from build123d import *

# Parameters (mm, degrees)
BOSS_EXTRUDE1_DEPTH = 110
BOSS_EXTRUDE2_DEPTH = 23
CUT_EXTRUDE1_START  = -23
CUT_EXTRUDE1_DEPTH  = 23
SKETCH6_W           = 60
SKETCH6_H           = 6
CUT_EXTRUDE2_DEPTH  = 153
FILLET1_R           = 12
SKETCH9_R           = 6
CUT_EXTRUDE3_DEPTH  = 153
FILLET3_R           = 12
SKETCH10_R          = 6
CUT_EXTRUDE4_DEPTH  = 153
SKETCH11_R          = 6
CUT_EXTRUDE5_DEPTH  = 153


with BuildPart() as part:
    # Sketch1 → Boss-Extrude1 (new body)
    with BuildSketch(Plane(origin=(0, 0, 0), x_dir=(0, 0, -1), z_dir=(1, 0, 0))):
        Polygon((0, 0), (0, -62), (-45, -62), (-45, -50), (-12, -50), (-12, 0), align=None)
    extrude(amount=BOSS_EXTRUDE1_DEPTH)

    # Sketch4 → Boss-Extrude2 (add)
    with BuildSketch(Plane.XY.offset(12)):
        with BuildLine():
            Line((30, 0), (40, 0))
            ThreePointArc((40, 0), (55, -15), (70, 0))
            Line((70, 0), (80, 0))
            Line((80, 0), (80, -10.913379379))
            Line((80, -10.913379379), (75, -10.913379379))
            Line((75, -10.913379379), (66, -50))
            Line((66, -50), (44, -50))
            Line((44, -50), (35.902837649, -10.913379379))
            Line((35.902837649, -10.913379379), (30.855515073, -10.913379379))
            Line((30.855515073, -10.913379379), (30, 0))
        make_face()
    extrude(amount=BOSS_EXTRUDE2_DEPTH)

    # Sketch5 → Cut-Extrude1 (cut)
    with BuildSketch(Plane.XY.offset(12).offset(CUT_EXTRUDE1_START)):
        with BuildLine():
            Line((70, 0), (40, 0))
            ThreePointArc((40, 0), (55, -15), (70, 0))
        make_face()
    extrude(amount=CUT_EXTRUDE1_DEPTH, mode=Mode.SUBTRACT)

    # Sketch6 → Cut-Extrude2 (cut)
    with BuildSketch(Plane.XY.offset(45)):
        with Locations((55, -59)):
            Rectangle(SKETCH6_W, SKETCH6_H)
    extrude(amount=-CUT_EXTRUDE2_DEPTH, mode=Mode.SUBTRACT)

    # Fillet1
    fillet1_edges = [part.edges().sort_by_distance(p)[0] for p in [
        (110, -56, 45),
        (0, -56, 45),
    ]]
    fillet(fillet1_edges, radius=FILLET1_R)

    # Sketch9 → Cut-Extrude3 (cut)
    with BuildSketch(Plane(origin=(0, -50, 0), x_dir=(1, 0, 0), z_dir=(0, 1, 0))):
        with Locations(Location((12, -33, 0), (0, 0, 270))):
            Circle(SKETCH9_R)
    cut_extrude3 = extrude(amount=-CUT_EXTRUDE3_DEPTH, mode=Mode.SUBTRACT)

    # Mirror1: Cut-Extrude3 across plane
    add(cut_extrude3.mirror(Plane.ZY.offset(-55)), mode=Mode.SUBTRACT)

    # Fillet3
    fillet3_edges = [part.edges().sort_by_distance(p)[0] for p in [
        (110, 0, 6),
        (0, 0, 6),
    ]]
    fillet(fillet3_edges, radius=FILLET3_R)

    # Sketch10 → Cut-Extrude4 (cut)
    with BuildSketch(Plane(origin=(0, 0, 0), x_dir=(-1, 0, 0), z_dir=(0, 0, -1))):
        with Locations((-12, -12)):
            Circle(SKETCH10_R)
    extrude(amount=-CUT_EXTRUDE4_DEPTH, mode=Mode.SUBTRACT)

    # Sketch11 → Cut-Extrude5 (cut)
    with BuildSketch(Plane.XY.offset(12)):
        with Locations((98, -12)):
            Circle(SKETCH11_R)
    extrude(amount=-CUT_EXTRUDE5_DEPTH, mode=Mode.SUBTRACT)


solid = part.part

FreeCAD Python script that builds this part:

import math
import FreeCAD as App
import Part
import Sketcher


def edges_at(feature, points):
    """Names of the edges that pass closest to the given points."""
    edges = feature.Shape.Edges
    near = lambda p: min(range(len(edges)), key=lambda i: edges[i].distToShape(Part.Vertex(*p))[0])
    return sorted({f"Edge{near(p) + 1}" for p in points})

doc = App.newDocument("Part")
params = doc.addObject("Spreadsheet::Sheet", "Params")
for row, (alias, value) in enumerate([
    ("sketch1_width", "62 mm"),
    ("sketch1_width2", "50 mm"),
    ("sketch1_height", "33 mm"),
    ("pad1_length", "110 mm"),
    ("sketch2_radius", "15 mm"),
    ("sketch2_width", "10 mm"),
    ("sketch2_width2", "22 mm"),
    ("sketch2_width3", "5 mm"),
    ("pad2_length", "23 mm"),
    ("sketch3_radius", "15 mm"),
    ("pocket1_length", "23 mm"),
    ("sketch4_width", "60 mm"),
    ("sketch4_height", "6 mm"),
    ("pocket2_length", "153 mm"),
    ("fillet_radius", "12 mm"),
    ("sketch5_diameter", "12 mm"),
    ("pocket3_length", "153 mm"),
    ("fillet2_radius", "12 mm"),
    ("sketch6_diameter", "12 mm"),
    ("pocket4_length", "153 mm"),
    ("sketch7_diameter", "12 mm"),
    ("pocket5_length", "153 mm"),
], start=1):
    params.set(f"A{row}", alias)
    params.set(f"B{row}", "=" + value)
    params.setAlias(f"B{row}", alias)

body = doc.addObject("PartDesign::Body", "Body")

# Sketch on YZ plane
sketch1 = body.newObject("Sketcher::SketchObject", "Sketch")
sketch1.AttachmentSupport = (doc.getObject("YZ_Plane"), [""])
sketch1.MapMode = "FlatFace"
sketch1.addGeometry([
    Part.LineSegment(App.Vector(-62, 0, 0), App.Vector(0, 0, 0)),  # 0
    Part.LineSegment(App.Vector(0, 0, 0), App.Vector(0, 12, 0)),  # 1
    Part.LineSegment(App.Vector(0, 12, 0), App.Vector(-50, 12, 0)),  # 2
    Part.LineSegment(App.Vector(-50, 12, 0), App.Vector(-50, 45, 0)),  # 3
    Part.LineSegment(App.Vector(-50, 45, 0), App.Vector(-62, 45, 0)),  # 4
    Part.LineSegment(App.Vector(-62, 45, 0), App.Vector(-62, 0, 0)),  # 5
], False)
sketch1.addConstraint([
    Sketcher.Constraint("Coincident", 0, 2, 1, 1),
    Sketcher.Constraint("Coincident", 1, 2, 2, 1),
    Sketcher.Constraint("Coincident", 2, 2, 3, 1),
    Sketcher.Constraint("Coincident", 3, 2, 4, 1),
    Sketcher.Constraint("Coincident", 4, 2, 5, 1),
    Sketcher.Constraint("Coincident", 5, 2, 0, 1),
    Sketcher.Constraint("Horizontal", 0),
    Sketcher.Constraint("Vertical", 1),
    Sketcher.Constraint("Horizontal", 2),
    Sketcher.Constraint("Vertical", 3),
    Sketcher.Constraint("Horizontal", 4),
    Sketcher.Constraint("Vertical", 5),
    Sketcher.Constraint("Coincident", 0, 2, -1, 1),
    Sketcher.Constraint("Equal", 4, 1),
    Sketcher.Constraint("DistanceX", 0, 1, 0, 2, 62.0),
    Sketcher.Constraint("DistanceX", 2, 2, 2, 1, 50.0),
    Sketcher.Constraint("DistanceY", 3, 1, 3, 2, 33.0),
])
sketch1.setExpression("Constraints[14]", "Params.sketch1_width")
sketch1.setExpression("Constraints[15]", "Params.sketch1_width2")
sketch1.setExpression("Constraints[16]", "Params.sketch1_height")
pad1 = body.newObject("PartDesign::Pad", "Pad")
pad1.Profile = sketch1
pad1.setExpression("Length", "Params.pad1_length")

# Sketch on XY plane
sketch2 = body.newObject("Sketcher::SketchObject", "Sketch001")
sketch2.AttachmentSupport = (doc.getObject("XY_Plane"), [""])
sketch2.MapMode = "FlatFace"
sketch2.AttachmentOffset = App.Placement(App.Vector(0, 0, 12), App.Rotation())
sketch2.addGeometry([
    Part.LineSegment(App.Vector(40, 0, 0), App.Vector(30, 0, 0)),  # 0
    Part.LineSegment(App.Vector(30, 0, 0), App.Vector(31, -11, 0)),  # 1
    Part.LineSegment(App.Vector(31, -11, 0), App.Vector(36, -11, 0)),  # 2
    Part.LineSegment(App.Vector(36, -11, 0), App.Vector(44, -50, 0)),  # 3
    Part.LineSegment(App.Vector(44, -50, 0), App.Vector(66, -50, 0)),  # 4
    Part.LineSegment(App.Vector(66, -50, 0), App.Vector(75, -11, 0)),  # 5
    Part.LineSegment(App.Vector(75, -11, 0), App.Vector(80, -11, 0)),  # 6
    Part.LineSegment(App.Vector(80, -11, 0), App.Vector(80, 0, 0)),  # 7
    Part.LineSegment(App.Vector(80, 0, 0), App.Vector(70, 0, 0)),  # 8
    Part.ArcOfCircle(Part.Circle(App.Vector(55, 0, 0), App.Vector(0, 0, 1), 15), math.radians(180), math.radians(360)),  # 9
], False)
sketch2.addConstraint([
    Sketcher.Constraint("Coincident", 0, 2, 1, 1),
    Sketcher.Constraint("Coincident", 1, 2, 2, 1),
    Sketcher.Constraint("Coincident", 2, 2, 3, 1),
    Sketcher.Constraint("Coincident", 3, 2, 4, 1),
    Sketcher.Constraint("Coincident", 4, 2, 5, 1),
    Sketcher.Constraint("Coincident", 5, 2, 6, 1),
    Sketcher.Constraint("Coincident", 6, 2, 7, 1),
    Sketcher.Constraint("Coincident", 7, 2, 8, 1),
    Sketcher.Constraint("Coincident", 8, 2, 9, 2),
    Sketcher.Constraint("Coincident", 9, 1, 0, 1),
    Sketcher.Constraint("Horizontal", 0),
    Sketcher.Constraint("Horizontal", 2),
    Sketcher.Constraint("Horizontal", 4),
    Sketcher.Constraint("Horizontal", 6),
    Sketcher.Constraint("Vertical", 7),
    Sketcher.Constraint("Horizontal", 8),
    Sketcher.Constraint("PointOnObject", 9, 3, -1),
    Sketcher.Constraint("PointOnObject", 0, 2, -1),
    Sketcher.Constraint("PointOnObject", 7, 2, -1),
    Sketcher.Constraint("Horizontal", 2, 2, 5, 2),
    Sketcher.Constraint("Equal", 0, 8),
    Sketcher.Constraint("Radius", 9, 15.0),
    Sketcher.Constraint("DistanceX", 0, 2, 0, 1, 10.0),
    Sketcher.Constraint("DistanceX", 4, 1, 4, 2, 22.0),
    Sketcher.Constraint("DistanceX", 6, 1, 6, 2, 5.0),
    Sketcher.Constraint("DistanceX", -1, 1, 9, 3, 55.0),
    Sketcher.Constraint("DistanceX", -1, 1, 3, 2, 44.0),
    Sketcher.Constraint("DistanceY", 3, 2, -1, 1, 50.0),
    Sketcher.Constraint("Distance", 5, 40.109399),
    Sketcher.Constraint("Distance", 1, 10.946861),
    Sketcher.Constraint("DistanceX", 2, 1, 2, 2, 5.047323),
])
sketch2.setExpression("Constraints[21]", "Params.sketch2_radius")
sketch2.setExpression("Constraints[22]", "Params.sketch2_width")
sketch2.setExpression("Constraints[23]", "Params.sketch2_width2")
sketch2.setExpression("Constraints[24]", "Params.sketch2_width3")
pad2 = body.newObject("PartDesign::Pad", "Pad001")
pad2.Profile = sketch2
pad2.setExpression("Length", "Params.pad2_length")

# Sketch on XY plane
sketch3 = body.newObject("Sketcher::SketchObject", "Sketch002")
sketch3.AttachmentSupport = (doc.getObject("XY_Plane"), [""])
sketch3.MapMode = "FlatFace"
sketch3.AttachmentOffset = App.Placement(App.Vector(0, 0, -11), App.Rotation())
sketch3.addGeometry([
    Part.LineSegment(App.Vector(70, 0, 0), App.Vector(40, 0, 0)),
    Part.ArcOfCircle(Part.Circle(App.Vector(55, 0, 0), App.Vector(0, 0, 1), 15), math.radians(180), math.radians(360)),
], False)
sketch3.addConstraint([
    Sketcher.Constraint("Coincident", 0, 1, 1, 2),
    Sketcher.Constraint("Coincident", 1, 1, 0, 2),
    Sketcher.Constraint("Horizontal", 0),
    Sketcher.Constraint("PointOnObject", 1, 3, -1),
    Sketcher.Constraint("PointOnObject", 0, 1, -1),
    Sketcher.Constraint("Radius", 1, 15.0),
    Sketcher.Constraint("DistanceX", -1, 1, 1, 3, 55.0),
])
sketch3.setExpression("Constraints[5]", "Params.sketch3_radius")
pocket1 = body.newObject("PartDesign::Pocket", "Pocket")
pocket1.Profile = sketch3
pocket1.setExpression("Length", "Params.pocket1_length")
pocket1.Reversed = True

# Sketch on XY plane
sketch4 = body.newObject("Sketcher::SketchObject", "Sketch003")
sketch4.AttachmentSupport = (doc.getObject("XY_Plane"), [""])
sketch4.MapMode = "FlatFace"
sketch4.AttachmentOffset = App.Placement(App.Vector(0, 0, 45), App.Rotation())
sketch4.addGeometry([
    Part.LineSegment(App.Vector(25, -56, 0), App.Vector(25, -62, 0)),
    Part.LineSegment(App.Vector(25, -62, 0), App.Vector(85, -62, 0)),
    Part.LineSegment(App.Vector(85, -62, 0), App.Vector(85, -56, 0)),
    Part.LineSegment(App.Vector(85, -56, 0), App.Vector(25, -56, 0)),
], False)
sketch4.addConstraint([
    Sketcher.Constraint("Coincident", 0, 2, 1, 1),
    Sketcher.Constraint("Coincident", 1, 2, 2, 1),
    Sketcher.Constraint("Coincident", 2, 2, 3, 1),
    Sketcher.Constraint("Coincident", 3, 2, 0, 1),
    Sketcher.Constraint("Vertical", 0),
    Sketcher.Constraint("Horizontal", 1),
    Sketcher.Constraint("Vertical", 2),
    Sketcher.Constraint("Horizontal", 3),
    Sketcher.Constraint("DistanceX", 1, 1, 1, 2, 60.0),
    Sketcher.Constraint("DistanceY", 0, 2, 0, 1, 6.0),
    Sketcher.Constraint("DistanceX", -1, 1, 0, 2, 25.0),
    Sketcher.Constraint("DistanceY", 0, 2, -1, 1, 62.0),
])
sketch4.setExpression("Constraints[8]", "Params.sketch4_width")
sketch4.setExpression("Constraints[9]", "Params.sketch4_height")
pocket2 = body.newObject("PartDesign::Pocket", "Pocket001")
pocket2.Profile = sketch4
pocket2.setExpression("Length", "Params.pocket2_length")
doc.recompute()

fillet = body.newObject("PartDesign::Fillet", "Fillet")
fillet.Base = (pocket2, edges_at(pocket2, [(110, -56, 45), (0, -56, 45)]))
fillet.setExpression("Radius", "Params.fillet_radius")

# Sketch on XZ plane
sketch5 = body.newObject("Sketcher::SketchObject", "Sketch004")
sketch5.AttachmentSupport = (doc.getObject("XZ_Plane"), [""])
sketch5.MapMode = "FlatFace"
sketch5.AttachmentOffset = App.Placement(App.Vector(0, 0, 50), App.Rotation())
sketch5.addGeometry(Part.Circle(App.Vector(12, 33, 0), App.Vector(0, 0, 1), 6), False)
sketch5.addConstraint([
    Sketcher.Constraint("Diameter", 0, 12.0),
    Sketcher.Constraint("DistanceX", -1, 1, 0, 3, 12.0),
    Sketcher.Constraint("DistanceY", -1, 1, 0, 3, 33.0),
])
sketch5.setExpression("Constraints[0]", "Params.sketch5_diameter")
pocket3 = body.newObject("PartDesign::Pocket", "Pocket002")
pocket3.Profile = sketch5
pocket3.setExpression("Length", "Params.pocket3_length")
pocket3.Reversed = True
doc.recompute()

datumplane = body.newObject("PartDesign::Plane", "DatumPlane")
datumplane.AttachmentSupport = (doc.getObject("YZ_Plane"), [""])
datumplane.MapMode = "FlatFace"
datumplane.AttachmentOffset = App.Placement(App.Vector(0, 0, 55), App.Rotation())
mirrored = body.newObject("PartDesign::Mirrored", "Mirrored")
mirrored.Originals = [pocket3]
mirrored.MirrorPlane = (datumplane, [""])
body.Tip = mirrored
doc.recompute()

fillet2 = body.newObject("PartDesign::Fillet", "Fillet001")
fillet2.Base = (mirrored, edges_at(mirrored, [(110, 0, 6), (0, 0, 6)]))
fillet2.setExpression("Radius", "Params.fillet2_radius")

# Sketch on XY plane
sketch6 = body.newObject("Sketcher::SketchObject", "Sketch005")
sketch6.AttachmentSupport = (doc.getObject("XY_Plane"), [""])
sketch6.MapMode = "FlatFace"
sketch6.addGeometry(Part.Circle(App.Vector(12, -12, 0), App.Vector(0, 0, 1), 6), False)
sketch6.addConstraint([
    Sketcher.Constraint("Diameter", 0, 12.0),
    Sketcher.Constraint("DistanceX", -1, 1, 0, 3, 12.0),
    Sketcher.Constraint("DistanceY", 0, 3, -1, 1, 12.0),
])
sketch6.setExpression("Constraints[0]", "Params.sketch6_diameter")
pocket4 = body.newObject("PartDesign::Pocket", "Pocket003")
pocket4.Profile = sketch6
pocket4.setExpression("Length", "Params.pocket4_length")
pocket4.Reversed = True

# Sketch on XY plane
sketch7 = body.newObject("Sketcher::SketchObject", "Sketch006")
sketch7.AttachmentSupport = (doc.getObject("XY_Plane"), [""])
sketch7.MapMode = "FlatFace"
sketch7.AttachmentOffset = App.Placement(App.Vector(0, 0, 12), App.Rotation())
sketch7.addGeometry(Part.Circle(App.Vector(98, -12, 0), App.Vector(0, 0, 1), 6), False)
sketch7.addConstraint([
    Sketcher.Constraint("Diameter", 0, 12.0),
    Sketcher.Constraint("DistanceX", -1, 1, 0, 3, 98.0),
    Sketcher.Constraint("DistanceY", 0, 3, -1, 1, 12.0),
])
sketch7.setExpression("Constraints[0]", "Params.sketch7_diameter")
pocket5 = body.newObject("PartDesign::Pocket", "Pocket004")
pocket5.Profile = sketch7
pocket5.setExpression("Length", "Params.pocket5_length")

doc.recompute()
